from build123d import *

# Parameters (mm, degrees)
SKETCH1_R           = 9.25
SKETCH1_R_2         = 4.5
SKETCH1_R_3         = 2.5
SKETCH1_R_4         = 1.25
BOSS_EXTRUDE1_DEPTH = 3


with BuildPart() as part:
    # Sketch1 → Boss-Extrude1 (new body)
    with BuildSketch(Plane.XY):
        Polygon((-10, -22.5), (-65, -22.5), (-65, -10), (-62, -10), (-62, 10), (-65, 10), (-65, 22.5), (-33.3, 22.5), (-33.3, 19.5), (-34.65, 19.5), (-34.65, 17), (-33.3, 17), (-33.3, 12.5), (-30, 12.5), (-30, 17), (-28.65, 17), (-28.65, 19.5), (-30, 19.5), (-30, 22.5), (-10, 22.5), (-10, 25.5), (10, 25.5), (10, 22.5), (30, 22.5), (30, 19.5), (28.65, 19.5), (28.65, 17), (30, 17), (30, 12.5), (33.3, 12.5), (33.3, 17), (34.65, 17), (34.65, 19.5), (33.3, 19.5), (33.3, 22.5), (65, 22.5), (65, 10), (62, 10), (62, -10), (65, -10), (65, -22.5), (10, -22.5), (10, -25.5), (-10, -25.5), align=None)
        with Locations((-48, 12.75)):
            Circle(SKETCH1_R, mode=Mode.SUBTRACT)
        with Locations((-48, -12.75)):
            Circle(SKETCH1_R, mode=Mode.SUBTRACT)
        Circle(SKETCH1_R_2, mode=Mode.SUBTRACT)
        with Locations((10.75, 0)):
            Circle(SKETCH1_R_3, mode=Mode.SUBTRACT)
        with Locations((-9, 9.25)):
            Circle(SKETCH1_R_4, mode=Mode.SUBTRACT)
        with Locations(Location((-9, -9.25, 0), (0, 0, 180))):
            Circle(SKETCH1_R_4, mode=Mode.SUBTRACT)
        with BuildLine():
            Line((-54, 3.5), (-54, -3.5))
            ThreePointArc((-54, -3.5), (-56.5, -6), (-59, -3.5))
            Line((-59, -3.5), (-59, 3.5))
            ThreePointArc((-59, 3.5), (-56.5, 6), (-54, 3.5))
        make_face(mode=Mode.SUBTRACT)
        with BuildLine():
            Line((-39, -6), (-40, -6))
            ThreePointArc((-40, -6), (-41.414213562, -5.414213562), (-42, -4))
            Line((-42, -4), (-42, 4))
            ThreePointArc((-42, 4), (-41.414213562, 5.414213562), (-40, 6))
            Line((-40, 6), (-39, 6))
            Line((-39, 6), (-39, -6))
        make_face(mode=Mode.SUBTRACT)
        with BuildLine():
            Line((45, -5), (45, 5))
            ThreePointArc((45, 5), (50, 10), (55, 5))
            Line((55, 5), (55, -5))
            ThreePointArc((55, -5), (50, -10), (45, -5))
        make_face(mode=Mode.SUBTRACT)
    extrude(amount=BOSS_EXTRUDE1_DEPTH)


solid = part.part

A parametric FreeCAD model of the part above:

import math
import FreeCAD as App
import Part
import Sketcher

doc = App.newDocument("Part")
body = doc.addObject("PartDesign::Body", "Body")

# Sketch on XY plane
sketch1 = body.newObject("Sketcher::SketchObject", "Sketch")
sketch1.AttachmentSupport = (doc.getObject("XY_Plane"), [""])
sketch1.MapMode = "FlatFace"
sketch1.addGeometry(Part.LineSegment(App.Vector(-65, -22.5, 0), App.Vector(-10, -22.5, 0)), False)
sketch1.addGeometry(Part.LineSegment(App.Vector(-10, -22.5, 0), App.Vector(-10, -25.5, 0)), False)
sketch1.addGeometry(Part.LineSegment(App.Vector(-10, -25.5, 0), App.Vector(10, -25.5, 0)), False)
sketch1.addGeometry(Part.LineSegment(App.Vector(10, -25.5, 0), App.Vector(10, -22.5, 0)), False)
sketch1.addGeometry(Part.LineSegment(App.Vector(10, -22.5, 0), App.Vector(65, -22.5, 0)), False)
sketch1.addGeometry(Part.LineSegment(App.Vector(65, -22.5, 0), App.Vector(65, -10, 0)), False)
sketch1.addGeometry(Part.LineSegment(App.Vector(65, -10, 0), App.Vector(62, -10, 0)), False)
sketch1.addGeometry(Part.LineSegment(App.Vector(62, -10, 0), App.Vector(62, 10, 0)), False)
sketch1.addGeometry(Part.LineSegment(App.Vector(62, 10, 0), App.Vector(65, 10, 0)), False)
sketch1.addGeometry(Part.LineSegment(App.Vector(65, 10, 0), App.Vector(65, 22.5, 0)), False)
sketch1.addGeometry(Part.LineSegment(App.Vector(65, 22.5, 0), App.Vector(33.3, 22.5, 0)), False)
sketch1.addGeometry(Part.LineSegment(App.Vector(33.3, 22.5, 0), App.Vector(33.3, 19.5, 0)), False)
sketch1.addGeometry(Part.LineSegment(App.Vector(33.3, 19.5, 0), App.Vector(34.6, 19.5, 0)), False)
sketch1.addGeometry(Part.LineSegment(App.Vector(34.6, 19.5, 0), App.Vector(34.6, 17, 0)), False)
sketch1.addGeometry(Part.LineSegment(App.Vector(34.6, 17, 0), App.Vector(33.3, 17, 0)), False)
sketch1.addGeometry(Part.LineSegment(App.Vector(33.3, 17, 0), App.Vector(33.3, 12.5, 0)), False)
sketch1.addGeometry(Part.LineSegment(App.Vector(33.3, 12.5, 0), App.Vector(30, 12.5, 0)), False)
sketch1.addGeometry(Part.LineSegment(App.Vector(30, 12.5, 0), App.Vector(30, 17, 0)), False)
sketch1.addGeometry(Part.LineSegment(App.Vector(30, 17, 0), App.Vector(28.6, 17, 0)), False)
sketch1.addGeometry(Part.LineSegment(App.Vector(28.6, 17, 0), App.Vector(28.6, 19.5, 0)), False)
sketch1.addGeometry(Part.LineSegment(App.Vector(28.6, 19.5, 0), App.Vector(30, 19.5, 0)), False)
sketch1.addGeometry(Part.LineSegment(App.Vector(30, 19.5, 0), App.Vector(30, 22.5, 0)), False)
sketch1.addGeometry(Part.LineSegment(App.Vector(30, 22.5, 0), App.Vector(10, 22.5, 0)), False)
sketch1.addGeometry(Part.LineSegment(App.Vector(10, 22.5, 0), App.Vector(10, 25.5, 0)), False)
sketch1.addGeometry(Part.LineSegment(App.Vector(10, 25.5, 0), App.Vector(-10, 25.5, 0)), False)
sketch1.addGeometry(Part.LineSegment(App.Vector(-10, 25.5, 0), App.Vector(-10, 22.5, 0)), False)
sketch1.addGeometry(Part.LineSegment(App.Vector(-10, 22.5, 0), App.Vector(-30, 22.5, 0)), False)
sketch1.addGeometry(Part.LineSegment(App.Vector(-30, 22.5, 0), App.Vector(-30, 19.5, 0)), False)
sketch1.addGeometry(Part.LineSegment(App.Vector(-30, 19.5, 0), App.Vector(-28.6, 19.5, 0)), False)
sketch1.addGeometry(Part.LineSegment(App.Vector(-28.6, 19.5, 0), App.Vector(-28.6, 17, 0)), False)
sketch1.addGeometry(Part.LineSegment(App.Vector(-28.6, 17, 0), App.Vector(-30, 17, 0)), False)
sketch1.addGeometry(Part.LineSegment(App.Vector(-30, 17, 0), App.Vector(-30, 12.5, 0)), False)
sketch1.addGeometry(Part.LineSegment(App.Vector(-30, 12.5, 0), App.Vector(-33.3, 12.5, 0)), False)
sketch1.addGeometry(Part.LineSegment(App.Vector(-33.3, 12.5, 0), App.Vector(-33.3, 17, 0)), False)
sketch1.addGeometry(Part.LineSegment(App.Vector(-33.3, 17, 0), App.Vector(-34.6, 17, 0)), False)
sketch1.addGeometry(Part.LineSegment(App.Vector(-34.6, 17, 0), App.Vector(-34.6, 19.5, 0)), False)
sketch1.addGeometry(Part.LineSegment(App.Vector(-34.6, 19.5, 0), App.Vector(-33.3, 19.5, 0)), False)
sketch1.addGeometry(Part.LineSegment(App.Vector(-33.3, 19.5, 0), App.Vector(-33.3, 22.5, 0)), False)
sketch1.addGeometry(Part.LineSegment(App.Vector(-33.3, 22.5, 0), App.Vector(-65, 22.5, 0)), False)
sketch1.addGeometry(Part.LineSegment(App.Vector(-65, 22.5, 0), App.Vector(-65, 10, 0)), False)
sketch1.addGeometry(Part.LineSegment(App.Vector(-65, 10, 0), App.Vector(-62, 10, 0)), False)
sketch1.addGeometry(Part.LineSegment(App.Vector(-62, 10, 0), App.Vector(-62, -10, 0)), False)
sketch1.addGeometry(Part.LineSegment(App.Vector(-62, -10, 0), App.Vector(-65, -10, 0)), False)
sketch1.addGeometry(Part.LineSegment(App.Vector(-65, -10, 0), App.Vector(-65, -22.5, 0)), False)
sketch1.addGeometry(Part.Circle(App.Vector(-48, -12.8, 0), App.Vector(0, 0, 1), 9.2), False)
sketch1.addGeometry(Part.Circle(App.Vector(-9, -9.2, 0), App.Vector(0, 0, 1), 1.2), False)
sketch1.addGeometry(Part.LineSegment(App.Vector(45, -5, 0), App.Vector(45, 5, 0)), False)
sketch1.addGeometry(Part.ArcOfCircle(Part.Circle(App.Vector(50, 5, 0), App.Vector(0, 0, 1), 5), math.radians(0), math.radians(180)), False)
sketch1.addGeometry(Part.LineSegment(App.Vector(55, 5, 0), App.Vector(55, -5, 0)), False)
sketch1.addGeometry(Part.ArcOfCircle(Part.Circle(App.Vector(50, -5, 0), App.Vector(0, 0, 1), 5), math.radians(180), math.radians(360)), False)
sketch1.addGeometry(Part.Circle(App.Vector(10.8, 0, 0), App.Vector(0, 0, 1), 2.5), False)
sketch1.addGeometry(Part.Circle(App.Vector(0, 0, 0), App.Vector(0, 0, 1), 4.5), False)
sketch1.addGeometry(Part.Circle(App.Vector(-9, 9.2, 0), App.Vector(0, 0, 1), 1.2), False)
sketch1.addGeometry(Part.LineSegment(App.Vector(-39, -6, 0), App.Vector(-40, -6, 0)), False)
sketch1.addGeometry(Part.ArcOfCircle(Part.Circle(App.Vector(-40, -4, 0), App.Vector(0, 0, 1), 2), math.radians(-180), math.radians(-90)), False)
sketch1.addGeometry(Part.LineSegment(App.Vector(-42, -4, 0), App.Vector(-42, 4, 0)), False)
sketch1.addGeometry(Part.ArcOfCircle(Part.Circle(App.Vector(-40, 4, 0), App.Vector(0, 0, 1), 2), math.radians(90), math.radians(180)), False)
sketch1.addGeometry(Part.LineSegment(App.Vector(-40, 6, 0), App.Vector(-39, 6, 0)), False)
sketch1.addGeometry(Part.LineSegment(App.Vector(-39, 6, 0), App.Vector(-39, -6, 0)), False)
sketch1.addGeometry(Part.LineSegment(App.Vector(-54, 3.5, 0), App.Vector(-54, -3.5, 0)), False)
sketch1.addGeometry(Part.ArcOfCircle(Part.Circle(App.Vector(-56.5, -3.5, 0), App.Vector(0, 0, 1), 2.5), math.radians(180), math.radians(360)), False)
sketch1.addGeometry(Part.LineSegment(App.Vector(-59, -3.5, 0), App.Vector(-59, 3.5, 0)), False)
sketch1.addGeometry(Part.ArcOfCircle(Part.Circle(App.Vector(-56.5, 3.5, 0), App.Vector(0, 0, 1), 2.5), math.radians(0), math.radians(180)), False)
sketch1.addGeometry(Part.Circle(App.Vector(-48, 12.8, 0), App.Vector(0, 0, 1), 9.2), False)
sketch1.addConstraint(Sketcher.Constraint("Coincident", 0, 2, 1, 1))
sketch1.addConstraint(Sketcher.Constraint("Coincident", 1, 2, 2, 1))
sketch1.addConstraint(Sketcher.Constraint("Coincident", 2, 2, 3, 1))
sketch1.addConstraint(Sketcher.Constraint("Coincident", 3, 2, 4, 1))
sketch1.addConstraint(Sketcher.Constraint("Coincident", 4, 2, 5, 1))
sketch1.addConstraint(Sketcher.Constraint("Coincident", 5, 2, 6, 1))
sketch1.addConstraint(Sketcher.Constraint("Coincident", 6, 2, 7, 1))
sketch1.addConstraint(Sketcher.Constraint("Coincident", 7, 2, 8, 1))
sketch1.addConstraint(Sketcher.Constraint("Coincident", 8, 2, 9, 1))
sketch1.addConstraint(Sketcher.Constraint("Coincident", 9, 2, 10, 1))
sketch1.addConstraint(Sketcher.Constraint("Coincident", 10, 2, 11, 1))
sketch1.addConstraint(Sketcher.Constraint("Coincident", 11, 2, 12, 1))
sketch1.addConstraint(Sketcher.Constraint("Coincident", 12, 2, 13, 1))
sketch1.addConstraint(Sketcher.Constraint("Coincident", 13, 2, 14, 1))
sketch1.addConstraint(Sketcher.Constraint("Coincident", 14, 2, 15, 1))
sketch1.addConstraint(Sketcher.Constraint("Coincident", 15, 2, 16, 1))
sketch1.addConstraint(Sketcher.Constraint("Coincident", 16, 2, 17, 1))
sketch1.addConstraint(Sketcher.Constraint("Coincident", 17, 2, 18, 1))
sketch1.addConstraint(Sketcher.Constraint("Coincident", 18, 2, 19, 1))
sketch1.addConstraint(Sketcher.Constraint("Coincident", 19, 2, 20, 1))
sketch1.addConstraint(Sketcher.Constraint("Coincident", 20, 2, 21, 1))
sketch1.addConstraint(Sketcher.Constraint("Coincident", 21, 2, 22, 1))
sketch1.addConstraint(Sketcher.Constraint("Coincident", 22, 2, 23, 1))
sketch1.addConstraint(Sketcher.Constraint("Coincident", 23, 2, 24, 1))
sketch1.addConstraint(Sketcher.Constraint("Coincident", 24, 2, 25, 1))
sketch1.addConstraint(Sketcher.Constraint("Coincident", 25, 2, 26, 1))
sketch1.addConstraint(Sketcher.Constraint("Coincident", 26, 2, 27, 1))
sketch1.addConstraint(Sketcher.Constraint("Coincident", 27, 2, 28, 1))
sketch1.addConstraint(Sketcher.Constraint("Coincident", 28, 2, 29, 1))
sketch1.addConstraint(Sketcher.Constraint("Coincident", 29, 2, 30, 1))
sketch1.addConstraint(Sketcher.Constraint("Coincident", 30, 2, 31, 1))
sketch1.addConstraint(Sketcher.Constraint("Coincident", 31, 2, 32, 1))
sketch1.addConstraint(Sketcher.Constraint("Coincident", 32, 2, 33, 1))
sketch1.addConstraint(Sketcher.Constraint("Coincident", 33, 2, 34, 1))
sketch1.addConstraint(Sketcher.Constraint("Coincident", 34, 2, 35, 1))
sketch1.addConstraint(Sketcher.Constraint("Coincident", 35, 2, 36, 1))
sketch1.addConstraint(Sketcher.Constraint("Coincident", 36, 2, 37, 1))
sketch1.addConstraint(Sketcher.Constraint("Coincident", 37, 2, 38, 1))
sketch1.addConstraint(Sketcher.Constraint("Coincident", 38, 2, 39, 1))
sketch1.addConstraint(Sketcher.Constraint("Coincident", 39, 2, 40, 1))
sketch1.addConstraint(Sketcher.Constraint("Coincident", 40, 2, 41, 1))
sketch1.addConstraint(Sketcher.Constraint("Coincident", 41, 2, 42, 1))
sketch1.addConstraint(Sketcher.Constraint("Coincident", 42, 2, 43, 1))
sketch1.addConstraint(Sketcher.Constraint("Coincident", 43, 2, 0, 1))
sketch1.addConstraint(Sketcher.Constraint("Tangent", 46, 2, 47, 2))
sketch1.addConstraint(Sketcher.Constraint("Tangent", 47, 1, 48, 1))
sketch1.addConstraint(Sketcher.Constraint("Tangent", 48, 2, 49, 2))
sketch1.addConstraint(Sketcher.Constraint("Tangent", 49, 1, 46, 1))
sketch1.addConstraint(Sketcher.Constraint("Tangent", 53, 2, 54, 2))
sketch1.addConstraint(Sketcher.Constraint("Tangent", 54, 1, 55, 1))
sketch1.addConstraint(Sketcher.Constraint("Tangent", 55, 2, 56, 2))
sketch1.addConstraint(Sketcher.Constraint("Tangent", 56, 1, 57, 1))
sketch1.addConstraint(Sketcher.Constraint("Coincident", 57, 2, 58, 1))
sketch1.addConstraint(Sketcher.Constraint("Coincident", 58, 2, 53, 1))
sketch1.addConstraint(Sketcher.Constraint("Tangent", 59, 2, 60, 2))
sketch1.addConstraint(Sketcher.Constraint("Tangent", 60, 1, 61, 1))
sketch1.addConstraint(Sketcher.Constraint("Tangent", 61, 2, 62, 2))
sketch1.addConstraint(Sketcher.Constraint("Tangent", 62, 1, 59, 1))
sketch1.addConstraint(Sketcher.Constraint("Horizontal", 0))
sketch1.addConstraint(Sketcher.Constraint("Vertical", 1))
sketch1.addConstraint(Sketcher.Constraint("Horizontal", 2))
sketch1.addConstraint(Sketcher.Constraint("Vertical", 3))
sketch1.addConstraint(Sketcher.Constraint("Horizontal", 4))
sketch1.addConstraint(Sketcher.Constraint("Vertical", 5))
sketch1.addConstraint(Sketcher.Constraint("Horizontal", 6))
sketch1.addConstraint(Sketcher.Constraint("Vertical", 7))
sketch1.addConstraint(Sketcher.Constraint("Horizontal", 8))
sketch1.addConstraint(Sketcher.Constraint("Vertical", 9))
sketch1.addConstraint(Sketcher.Constraint("Horizontal", 10))
sketch1.addConstraint(Sketcher.Constraint("Vertical", 11))
sketch1.addConstraint(Sketcher.Constraint("Horizontal", 12))
sketch1.addConstraint(Sketcher.Constraint("Vertical", 13))
sketch1.addConstraint(Sketcher.Constraint("Horizontal", 14))
sketch1.addConstraint(Sketcher.Constraint("Vertical", 15))
sketch1.addConstraint(Sketcher.Constraint("Horizontal", 16))
sketch1.addConstraint(Sketcher.Constraint("Vertical", 17))
sketch1.addConstraint(Sketcher.Constraint("Horizontal", 18))
sketch1.addConstraint(Sketcher.Constraint("Vertical", 19))
sketch1.addConstraint(Sketcher.Constraint("Horizontal", 20))
sketch1.addConstraint(Sketcher.Constraint("Vertical", 21))
sketch1.addConstraint(Sketcher.Constraint("Horizontal", 22))
sketch1.addConstraint(Sketcher.Constraint("Vertical", 23))
sketch1.addConstraint(Sketcher.Constraint("Horizontal", 24))
sketch1.addConstraint(Sketcher.Constraint("Vertical", 25))
sketch1.addConstraint(Sketcher.Constraint("Horizontal", 26))
sketch1.addConstraint(Sketcher.Constraint("Vertical", 27))
sketch1.addConstraint(Sketcher.Constraint("Horizontal", 28))
sketch1.addConstraint(Sketcher.Constraint("Vertical", 29))
sketch1.addConstraint(Sketcher.Constraint("Horizontal", 30))
sketch1.addConstraint(Sketcher.Constraint("Vertical", 31))
sketch1.addConstraint(Sketcher.Constraint("Horizontal", 32))
sketch1.addConstraint(Sketcher.Constraint("Vertical", 33))
sketch1.addConstraint(Sketcher.Constraint("Horizontal", 34))
sketch1.addConstraint(Sketcher.Constraint("Vertical", 35))
sketch1.addConstraint(Sketcher.Constraint("Horizontal", 36))
sketch1.addConstraint(Sketcher.Constraint("Vertical", 37))
sketch1.addConstraint(Sketcher.Constraint("Horizontal", 38))
sketch1.addConstraint(Sketcher.Constraint("Vertical", 39))
sketch1.addConstraint(Sketcher.Constraint("Horizontal", 40))
sketch1.addConstraint(Sketcher.Constraint("Vertical", 41))
sketch1.addConstraint(Sketcher.Constraint("Horizontal", 42))
sketch1.addConstraint(Sketcher.Constraint("Vertical", 43))
sketch1.addConstraint(Sketcher.Constraint("Vertical", 46))
sketch1.addConstraint(Sketcher.Constraint("Vertical", 48))
sketch1.addConstraint(Sketcher.Constraint("Horizontal", 53))
sketch1.addConstraint(Sketcher.Constraint("Vertical", 55))
sketch1.addConstraint(Sketcher.Constraint("Horizontal", 57))
sketch1.addConstraint(Sketcher.Constraint("Vertical", 58))
sketch1.addConstraint(Sketcher.Constraint("Vertical", 59))
sketch1.addConstraint(Sketcher.Constraint("Vertical", 61))
sketch1.addConstraint(Sketcher.Constraint("Coincident", 51, 3, -1, 1))
sketch1.addConstraint(Sketcher.Constraint("Equal", 45, 52))
sketch1.addConstraint(Sketcher.Constraint("Equal", 54, 56))
sketch1.addConstraint(Sketcher.Constraint("Equal", 50, 60))
sketch1.addConstraint(Sketcher.Constraint("Equal", 44, 63))
sketch1.addConstraint(Sketcher.Constraint("Symmetric", 0, 2, 22, 2, -1, 1))
sketch1.addConstraint(Sketcher.Constraint("Symmetric", 2, 2, 24, 2, -1, 1))
sketch1.addConstraint(Sketcher.Constraint("Symmetric", 4, 2, 38, 2, -1, 1))
sketch1.addConstraint(Sketcher.Constraint("Symmetric", 6, 2, 40, 2, -1, 1))
sketch1.addConstraint(Sketcher.Constraint("Symmetric", 8, 2, 42, 2, -1, 1))
sketch1.addConstraint(Sketcher.Constraint("Symmetric", 0, 2, 3, 2, -2))
sketch1.addConstraint(Sketcher.Constraint("Symmetric", 21, 2, 26, 2, -2))
sketch1.addConstraint(Sketcher.Constraint("Symmetric", 19, 2, 28, 2, -2))
sketch1.addConstraint(Sketcher.Constraint("Symmetric", 17, 2, 30, 2, -2))
sketch1.addConstraint(Sketcher.Constraint("Symmetric", 15, 2, 32, 2, -2))
sketch1.addConstraint(Sketcher.Constraint("Symmetric", 13, 2, 34, 2, -2))
sketch1.addConstraint(Sketcher.Constraint("Symmetric", 11, 2, 36, 2, -2))
sketch1.addConstraint(Sketcher.Constraint("Symmetric", 9, 2, 38, 2, -2))
sketch1.addConstraint(Sketcher.Constraint("Symmetric", 45, 3, 52, 3, -1))
sketch1.addConstraint(Sketcher.Constraint("Symmetric", 44, 3, 63, 3, -1))
sketch1.addConstraint(Sketcher.Constraint("PointOnObject", 50, 3, -1))
sketch1.addConstraint(Sketcher.Constraint("Horizontal", 14, 2, 17, 2))
sketch1.addConstraint(Sketcher.Constraint("Horizontal", 12, 2, 19, 2))
sketch1.addConstraint(Sketcher.Constraint("Horizontal", 8, 2, 39, 2))
sketch1.addConstraint(Sketcher.Constraint("Vertical", 11, 2, 14, 2))
sketch1.addConstraint(Sketcher.Constraint("Vertical", 17, 2, 20, 2))
sketch1.addConstraint(Sketcher.Constraint("Equal", 14, 18))
sketch1.addConstraint(Sketcher.Constraint("Equal", 2, 22))
sketch1.addConstraint(Sketcher.Constraint("Equal", 42, 1))
sketch1.addConstraint(Sketcher.Constraint("Equal", 26, 7))
sketch1.addConstraint(Sketcher.Constraint("Equal", 3, 11))
sketch1.addConstraint(Sketcher.Constraint("Diameter", 50, 5.0))
sketch1.addConstraint(Sketcher.Constraint("Diameter", 51, 9.0))
sketch1.addConstraint(Sketcher.Constraint("Radius", 47, 5.0))
sketch1.addConstraint(Sketcher.Constraint("Radius", 54, 2.0))
sketch1.addConstraint(Sketcher.Constraint("Diameter", 44, 18.5))
sketch1.addConstraint(Sketcher.Constraint("Diameter", 45, 2.5))
sketch1.addConstraint(Sketcher.Constraint("DistanceX", 0, 1, 0, 2, 55.0))
sketch1.addConstraint(Sketcher.Constraint("DistanceX", 2, 1, 2, 2, 20.0))
sketch1.addConstraint(Sketcher.Constraint("DistanceX", 6, 2, 6, 1, 3.0))
sketch1.addConstraint(Sketcher.Constraint("DistanceX", 53, 2, 53, 1, 1.0))
sketch1.addConstraint(Sketcher.Constraint("DistanceY", 46, 1, 46, 2, 10.0))
sketch1.addConstraint(Sketcher.Constraint("DistanceY", 55, 1, 55, 2, 8.0))
sketch1.addConstraint(Sketcher.Constraint("DistanceY", 59, 2, 59, 1, 7.0))
sketch1.addConstraint(Sketcher.Constraint("DistanceX", 10, 2, 10, 1, 31.7))
sketch1.addConstraint(Sketcher.Constraint("DistanceY", 5, 1, 5, 2, 12.5))
sketch1.addConstraint(Sketcher.Constraint("DistanceY", 13, 2, 13, 1, 2.5))
sketch1.addConstraint(Sketcher.Constraint("DistanceY", 15, 2, 15, 1, 4.5))
sketch1.addConstraint(Sketcher.Constraint("DistanceX", 44, 3, -1, 1, 48.0))
sketch1.addConstraint(Sketcher.Constraint("DistanceX", 45, 3, -1, 1, 9.0))
sketch1.addConstraint(Sketcher.Constraint("DistanceX", -1, 1, 47, 3, 50.0))
sketch1.addConstraint(Sketcher.Constraint("DistanceY", -1, 1, 47, 3, 5.0))
sketch1.addConstraint(Sketcher.Constraint("DistanceX", 54, 3, -1, 1, 40.0))
sketch1.addConstraint(Sketcher.Constraint("DistanceY", 54, 3, -1, 1, 4.0))
sketch1.addConstraint(Sketcher.Constraint("DistanceX", 59, 2, -1, 1, 54.0))
sketch1.addConstraint(Sketcher.Constraint("DistanceX", 12, 1, 12, 2, 1.35))
sketch1.addConstraint(Sketcher.Constraint("DistanceY", 60, 3, -1, 1, 3.5))
sketch1.addConstraint(Sketcher.Constraint("DistanceY", 44, 3, -1, 1, 12.75))
sketch1.addConstraint(Sketcher.Constraint("DistanceY", 45, 3, -1, 1, 9.25))
sketch1.addConstraint(Sketcher.Constraint("DistanceX", -1, 1, 50, 3, 10.75))
pad1 = body.newObject("PartDesign::Pad", "Pad")
pad1.Profile = sketch1
pad1.Length = 3

doc.recompute()
